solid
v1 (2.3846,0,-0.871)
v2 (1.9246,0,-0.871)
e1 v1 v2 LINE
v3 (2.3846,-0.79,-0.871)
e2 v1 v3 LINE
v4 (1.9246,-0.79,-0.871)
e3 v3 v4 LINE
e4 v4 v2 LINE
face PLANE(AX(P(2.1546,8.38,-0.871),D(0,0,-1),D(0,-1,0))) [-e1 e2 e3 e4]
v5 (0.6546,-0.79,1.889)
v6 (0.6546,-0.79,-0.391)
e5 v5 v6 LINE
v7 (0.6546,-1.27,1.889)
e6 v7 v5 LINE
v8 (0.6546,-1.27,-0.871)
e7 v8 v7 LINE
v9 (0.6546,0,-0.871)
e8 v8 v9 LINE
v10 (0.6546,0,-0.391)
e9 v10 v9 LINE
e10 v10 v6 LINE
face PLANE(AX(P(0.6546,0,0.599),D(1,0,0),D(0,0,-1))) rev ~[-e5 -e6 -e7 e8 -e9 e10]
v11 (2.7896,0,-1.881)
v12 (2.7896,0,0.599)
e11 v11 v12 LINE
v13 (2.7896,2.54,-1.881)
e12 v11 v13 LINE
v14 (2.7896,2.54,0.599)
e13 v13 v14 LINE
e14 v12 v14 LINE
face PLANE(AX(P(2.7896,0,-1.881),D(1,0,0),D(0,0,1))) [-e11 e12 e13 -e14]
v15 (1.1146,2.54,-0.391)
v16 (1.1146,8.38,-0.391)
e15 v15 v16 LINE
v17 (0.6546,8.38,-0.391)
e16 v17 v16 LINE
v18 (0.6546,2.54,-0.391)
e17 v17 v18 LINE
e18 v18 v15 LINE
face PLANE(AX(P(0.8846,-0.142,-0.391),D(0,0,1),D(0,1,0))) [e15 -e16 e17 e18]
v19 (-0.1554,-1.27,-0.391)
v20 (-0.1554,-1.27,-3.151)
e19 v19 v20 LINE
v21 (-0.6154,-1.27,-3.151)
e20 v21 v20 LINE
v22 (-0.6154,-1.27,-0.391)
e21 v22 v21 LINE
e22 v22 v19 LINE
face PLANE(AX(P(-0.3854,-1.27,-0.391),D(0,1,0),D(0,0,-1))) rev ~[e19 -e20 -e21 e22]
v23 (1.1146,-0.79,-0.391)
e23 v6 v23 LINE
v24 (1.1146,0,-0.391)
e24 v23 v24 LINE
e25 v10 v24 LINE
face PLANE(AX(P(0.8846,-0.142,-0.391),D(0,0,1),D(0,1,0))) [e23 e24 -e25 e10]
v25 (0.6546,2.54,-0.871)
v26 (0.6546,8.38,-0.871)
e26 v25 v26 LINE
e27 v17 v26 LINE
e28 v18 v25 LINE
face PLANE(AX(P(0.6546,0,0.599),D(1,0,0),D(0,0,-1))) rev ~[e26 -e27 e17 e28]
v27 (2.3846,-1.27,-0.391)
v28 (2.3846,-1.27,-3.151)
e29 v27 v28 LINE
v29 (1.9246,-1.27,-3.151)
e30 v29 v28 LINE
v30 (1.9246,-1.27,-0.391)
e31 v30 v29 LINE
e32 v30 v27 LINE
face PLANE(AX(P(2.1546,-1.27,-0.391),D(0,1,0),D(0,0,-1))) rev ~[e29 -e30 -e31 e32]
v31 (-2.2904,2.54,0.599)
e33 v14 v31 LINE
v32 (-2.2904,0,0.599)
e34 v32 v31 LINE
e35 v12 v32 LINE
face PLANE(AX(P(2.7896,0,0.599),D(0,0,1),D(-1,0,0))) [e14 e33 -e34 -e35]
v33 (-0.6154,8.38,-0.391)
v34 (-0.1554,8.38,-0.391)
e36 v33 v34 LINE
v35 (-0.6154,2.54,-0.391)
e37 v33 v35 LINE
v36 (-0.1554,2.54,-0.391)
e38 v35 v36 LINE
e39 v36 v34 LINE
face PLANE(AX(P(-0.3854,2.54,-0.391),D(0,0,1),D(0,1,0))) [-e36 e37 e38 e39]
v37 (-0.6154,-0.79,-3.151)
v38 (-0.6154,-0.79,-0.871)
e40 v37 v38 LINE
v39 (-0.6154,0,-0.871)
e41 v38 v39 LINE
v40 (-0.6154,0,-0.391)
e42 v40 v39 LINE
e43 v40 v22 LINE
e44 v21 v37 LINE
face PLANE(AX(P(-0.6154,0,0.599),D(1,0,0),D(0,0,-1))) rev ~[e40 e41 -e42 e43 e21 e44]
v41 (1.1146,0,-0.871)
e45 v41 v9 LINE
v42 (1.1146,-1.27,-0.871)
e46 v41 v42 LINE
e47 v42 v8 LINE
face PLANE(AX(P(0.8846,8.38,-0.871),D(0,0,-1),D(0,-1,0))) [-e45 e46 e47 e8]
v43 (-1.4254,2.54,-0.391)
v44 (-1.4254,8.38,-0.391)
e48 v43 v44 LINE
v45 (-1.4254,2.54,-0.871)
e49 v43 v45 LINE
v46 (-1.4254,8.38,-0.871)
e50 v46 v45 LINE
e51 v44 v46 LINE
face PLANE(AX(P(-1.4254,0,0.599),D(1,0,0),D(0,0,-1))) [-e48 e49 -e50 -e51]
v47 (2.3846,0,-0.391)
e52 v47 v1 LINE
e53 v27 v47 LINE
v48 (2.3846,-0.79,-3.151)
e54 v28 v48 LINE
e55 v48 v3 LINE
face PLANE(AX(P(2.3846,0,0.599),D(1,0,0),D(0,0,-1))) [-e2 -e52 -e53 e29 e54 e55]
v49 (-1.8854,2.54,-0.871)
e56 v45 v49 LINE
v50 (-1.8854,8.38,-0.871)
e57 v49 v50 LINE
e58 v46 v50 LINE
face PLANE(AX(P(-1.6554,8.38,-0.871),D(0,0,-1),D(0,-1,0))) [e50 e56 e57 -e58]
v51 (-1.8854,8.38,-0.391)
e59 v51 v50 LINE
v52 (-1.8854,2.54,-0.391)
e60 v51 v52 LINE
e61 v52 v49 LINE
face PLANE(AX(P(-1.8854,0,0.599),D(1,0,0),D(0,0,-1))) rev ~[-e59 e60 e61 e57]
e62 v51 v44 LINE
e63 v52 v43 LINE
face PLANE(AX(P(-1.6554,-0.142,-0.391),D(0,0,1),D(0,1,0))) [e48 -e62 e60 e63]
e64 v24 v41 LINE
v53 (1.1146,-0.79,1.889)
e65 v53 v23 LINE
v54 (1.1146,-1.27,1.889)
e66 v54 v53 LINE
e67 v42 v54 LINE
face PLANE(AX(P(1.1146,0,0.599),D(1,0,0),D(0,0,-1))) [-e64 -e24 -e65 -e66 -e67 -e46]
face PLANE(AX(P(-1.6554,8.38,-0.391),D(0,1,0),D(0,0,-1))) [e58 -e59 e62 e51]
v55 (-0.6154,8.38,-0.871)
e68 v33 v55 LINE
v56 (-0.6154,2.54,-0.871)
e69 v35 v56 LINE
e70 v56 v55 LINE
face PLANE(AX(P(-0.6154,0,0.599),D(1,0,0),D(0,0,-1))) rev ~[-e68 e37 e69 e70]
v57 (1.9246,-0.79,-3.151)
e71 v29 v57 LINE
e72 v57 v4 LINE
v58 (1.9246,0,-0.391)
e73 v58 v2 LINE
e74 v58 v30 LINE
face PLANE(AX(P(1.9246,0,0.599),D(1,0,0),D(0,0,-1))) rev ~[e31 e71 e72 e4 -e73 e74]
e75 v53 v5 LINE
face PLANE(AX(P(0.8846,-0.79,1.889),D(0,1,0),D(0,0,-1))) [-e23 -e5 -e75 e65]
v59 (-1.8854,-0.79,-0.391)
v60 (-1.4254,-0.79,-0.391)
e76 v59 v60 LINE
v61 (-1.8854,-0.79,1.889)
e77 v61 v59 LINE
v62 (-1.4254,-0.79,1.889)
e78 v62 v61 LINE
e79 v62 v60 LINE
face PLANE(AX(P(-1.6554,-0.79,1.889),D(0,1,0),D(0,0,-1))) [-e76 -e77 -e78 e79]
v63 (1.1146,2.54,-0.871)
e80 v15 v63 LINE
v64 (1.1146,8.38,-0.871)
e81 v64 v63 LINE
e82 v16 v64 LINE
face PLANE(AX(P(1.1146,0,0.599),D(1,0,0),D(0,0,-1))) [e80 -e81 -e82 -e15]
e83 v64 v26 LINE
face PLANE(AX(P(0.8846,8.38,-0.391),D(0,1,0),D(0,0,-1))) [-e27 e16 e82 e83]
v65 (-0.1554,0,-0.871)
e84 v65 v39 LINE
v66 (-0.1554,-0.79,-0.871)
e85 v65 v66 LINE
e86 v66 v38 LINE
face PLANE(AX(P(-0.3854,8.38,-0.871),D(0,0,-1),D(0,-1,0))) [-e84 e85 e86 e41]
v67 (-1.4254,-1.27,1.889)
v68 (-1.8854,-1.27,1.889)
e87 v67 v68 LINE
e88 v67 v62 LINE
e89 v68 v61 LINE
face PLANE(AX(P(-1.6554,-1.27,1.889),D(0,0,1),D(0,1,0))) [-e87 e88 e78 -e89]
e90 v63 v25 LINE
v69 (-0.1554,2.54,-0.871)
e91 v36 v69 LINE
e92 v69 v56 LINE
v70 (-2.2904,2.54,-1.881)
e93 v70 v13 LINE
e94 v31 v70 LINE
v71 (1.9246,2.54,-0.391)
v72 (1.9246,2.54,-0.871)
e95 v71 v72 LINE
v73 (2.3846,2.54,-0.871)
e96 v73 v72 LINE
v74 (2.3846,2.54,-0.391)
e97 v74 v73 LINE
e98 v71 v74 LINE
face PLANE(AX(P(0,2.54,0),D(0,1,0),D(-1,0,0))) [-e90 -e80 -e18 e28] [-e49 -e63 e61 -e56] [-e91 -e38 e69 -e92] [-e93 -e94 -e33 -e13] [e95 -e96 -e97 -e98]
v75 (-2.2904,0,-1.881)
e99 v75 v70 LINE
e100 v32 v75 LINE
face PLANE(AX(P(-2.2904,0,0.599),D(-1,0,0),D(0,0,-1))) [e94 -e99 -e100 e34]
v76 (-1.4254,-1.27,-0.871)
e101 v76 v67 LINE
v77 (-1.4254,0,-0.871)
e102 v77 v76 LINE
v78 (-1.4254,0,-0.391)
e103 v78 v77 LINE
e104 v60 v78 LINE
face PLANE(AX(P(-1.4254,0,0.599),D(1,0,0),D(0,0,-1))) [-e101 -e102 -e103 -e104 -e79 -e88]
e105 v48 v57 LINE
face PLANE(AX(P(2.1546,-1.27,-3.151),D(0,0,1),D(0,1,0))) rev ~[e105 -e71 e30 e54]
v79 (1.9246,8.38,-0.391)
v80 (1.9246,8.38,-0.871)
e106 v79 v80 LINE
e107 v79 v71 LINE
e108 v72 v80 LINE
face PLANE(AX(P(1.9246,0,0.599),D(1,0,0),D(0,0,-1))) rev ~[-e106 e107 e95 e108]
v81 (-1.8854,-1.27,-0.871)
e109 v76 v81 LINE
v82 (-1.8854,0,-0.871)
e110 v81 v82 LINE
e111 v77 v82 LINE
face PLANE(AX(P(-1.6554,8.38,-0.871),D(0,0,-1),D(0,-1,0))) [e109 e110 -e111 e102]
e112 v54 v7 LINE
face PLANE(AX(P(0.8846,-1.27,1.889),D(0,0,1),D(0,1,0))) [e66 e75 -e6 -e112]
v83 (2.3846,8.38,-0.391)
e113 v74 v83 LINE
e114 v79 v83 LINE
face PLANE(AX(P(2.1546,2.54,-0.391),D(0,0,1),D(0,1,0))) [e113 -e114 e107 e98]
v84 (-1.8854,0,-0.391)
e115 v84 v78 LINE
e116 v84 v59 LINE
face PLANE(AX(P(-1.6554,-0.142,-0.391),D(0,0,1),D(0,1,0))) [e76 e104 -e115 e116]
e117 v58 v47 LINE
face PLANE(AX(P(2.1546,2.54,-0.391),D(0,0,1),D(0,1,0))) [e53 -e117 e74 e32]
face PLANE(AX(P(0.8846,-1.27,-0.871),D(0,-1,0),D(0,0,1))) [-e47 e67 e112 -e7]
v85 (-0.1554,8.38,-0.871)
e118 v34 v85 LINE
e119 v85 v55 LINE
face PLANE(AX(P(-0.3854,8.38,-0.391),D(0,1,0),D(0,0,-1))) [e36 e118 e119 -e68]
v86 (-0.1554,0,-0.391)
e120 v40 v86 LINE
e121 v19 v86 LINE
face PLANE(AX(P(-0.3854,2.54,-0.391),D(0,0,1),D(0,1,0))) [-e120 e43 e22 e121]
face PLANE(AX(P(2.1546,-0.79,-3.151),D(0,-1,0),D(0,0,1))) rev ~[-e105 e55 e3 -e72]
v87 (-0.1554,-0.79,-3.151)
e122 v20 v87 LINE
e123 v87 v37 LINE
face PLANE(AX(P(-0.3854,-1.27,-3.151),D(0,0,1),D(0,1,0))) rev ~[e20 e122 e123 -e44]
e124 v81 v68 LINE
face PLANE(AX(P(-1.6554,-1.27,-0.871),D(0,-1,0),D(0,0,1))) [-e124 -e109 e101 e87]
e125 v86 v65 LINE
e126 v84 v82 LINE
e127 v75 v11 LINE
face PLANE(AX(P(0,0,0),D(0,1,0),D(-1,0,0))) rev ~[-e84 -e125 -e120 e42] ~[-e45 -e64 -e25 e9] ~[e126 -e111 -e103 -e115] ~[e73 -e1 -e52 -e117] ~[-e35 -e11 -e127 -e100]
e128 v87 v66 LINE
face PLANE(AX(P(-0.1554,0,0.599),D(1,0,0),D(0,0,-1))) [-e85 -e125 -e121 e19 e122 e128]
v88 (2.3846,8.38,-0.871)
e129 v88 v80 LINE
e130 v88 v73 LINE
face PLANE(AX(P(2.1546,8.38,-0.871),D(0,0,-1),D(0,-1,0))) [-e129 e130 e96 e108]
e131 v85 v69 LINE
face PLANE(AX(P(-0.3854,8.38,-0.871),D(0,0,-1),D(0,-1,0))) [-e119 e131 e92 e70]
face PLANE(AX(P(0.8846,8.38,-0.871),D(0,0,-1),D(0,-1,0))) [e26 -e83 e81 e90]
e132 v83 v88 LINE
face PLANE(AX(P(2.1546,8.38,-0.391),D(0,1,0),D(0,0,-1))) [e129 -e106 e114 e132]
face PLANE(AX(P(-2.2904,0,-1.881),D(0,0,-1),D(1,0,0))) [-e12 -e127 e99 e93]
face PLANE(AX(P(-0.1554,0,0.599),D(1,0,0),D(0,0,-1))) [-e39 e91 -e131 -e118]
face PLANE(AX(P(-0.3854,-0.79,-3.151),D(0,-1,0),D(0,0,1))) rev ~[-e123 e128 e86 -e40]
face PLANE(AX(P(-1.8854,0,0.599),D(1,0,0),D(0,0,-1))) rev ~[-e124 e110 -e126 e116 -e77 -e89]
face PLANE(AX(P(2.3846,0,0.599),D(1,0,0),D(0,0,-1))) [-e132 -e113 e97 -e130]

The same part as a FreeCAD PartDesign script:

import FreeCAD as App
import Part
import Sketcher
from FreeCAD import Vector
Q = App.Units.Quantity


def add_polygon(sketch, points):
    """Adds a closed chain of lines whose ends are joined by coincident constraints."""
    first, n = sketch.GeometryCount, len(points)
    for a, b in zip(points, points[1:] + points[:1]):
        sketch.addGeometry(Part.LineSegment(App.Vector(*a, 0), App.Vector(*b, 0)), False)
    for i in range(n):
        sketch.addConstraint(Sketcher.Constraint("Coincident", first + i, 2, first + (i + 1) % n, 1))

doc = App.newDocument("Part")
body = doc.addObject("PartDesign::Body", "Body")

sketch1 = body.newObject("Sketcher::SketchObject", "Sketch")
sketch1.AttachmentSupport = (doc.getObject("XZ_Plane"), [""])
sketch1.MapMode = "FlatFace"
add_polygon(sketch1, [(-2.3, 0.6), (2.8, 0.6), (2.8, -1.9), (-2.3, -1.9)])
sketch1.addConstraint([
    Sketcher.Constraint("Horizontal", 0),
    Sketcher.Constraint("Vertical", 1),
    Sketcher.Constraint("Horizontal", 2),
    Sketcher.Constraint("Vertical", 3),
    Sketcher.Constraint("DistanceX", 0, 1, 0, 2, Q("0.2 in")),
    Sketcher.Constraint("DistanceY", 1, 2, 1, 1, Q("2.48 mm")),
    Sketcher.Constraint("DistanceX", -1, 1, 0, 2, Q("2.7896 mm")),
    Sketcher.Constraint("DistanceY", -1, 1, 0, 2, Q("0.599 mm")),
])
pad1 = body.newObject("PartDesign::Pad", "Pad")
pad1.Profile = sketch1
pad1.Length = Q("0.1 in")
pad1.Reversed = True

sketch2 = body.newObject("Sketcher::SketchObject", "Sketch001")
sketch2.AttachmentSupport = (doc.getObject("YZ_Plane"), [""])
sketch2.MapMode = "FlatFace"
sketch2.AttachmentOffset = App.Placement(Vector(0, 0, 2.1546), App.Rotation())
add_polygon(sketch2, [(8.38, -0.87), (8.38, -0.39), (-1.27, -0.39), (-1.27, -3.15), (-0.79, -3.15), (-0.79, -0.87)])
sketch2.addConstraint([
    Sketcher.Constraint("Vertical", 0),
    Sketcher.Constraint("Horizontal", 1),
    Sketcher.Constraint("Vertical", 2),
    Sketcher.Constraint("Horizontal", 3),
    Sketcher.Constraint("Vertical", 4),
    Sketcher.Constraint("Horizontal", 5),
    Sketcher.Constraint("Equal", 3, 0),
    Sketcher.Constraint("DistanceX", 1, 2, -1, 1, Q("0.05 in")),
    Sketcher.Constraint("DistanceX", 3, 1, 3, 2, Q("0.0189 in")),
    Sketcher.Constraint("DistanceX", 1, 2, 1, 1, Q("9.65 mm")),
    Sketcher.Constraint("DistanceY", 2, 2, 2, 1, Q("2.76 mm")),
    Sketcher.Constraint("DistanceY", 0, 2, -1, 1, Q("0.0154 in")),
])
pad2 = body.newObject("PartDesign::Pad", "Pad001")
pad2.Profile = sketch2
pad2.Length = Q("0.0181102 in")
pad2.Midplane = True
doc.recompute()

linearpattern = body.newObject("PartDesign::LinearPattern", "LinearPattern")
linearpattern.Originals = [pad2]
linearpattern.Direction = (doc.getObject("X_Axis"), [""])
linearpattern.Mode = "offset"
linearpattern.Offset = Q("0.1 in")
linearpattern.Occurrences = 2
linearpattern.Reversed = True
body.Tip = linearpattern

sketch3 = body.newObject("Sketcher::SketchObject", "Sketch002")
sketch3.AttachmentSupport = (doc.getObject("YZ_Plane"), [""])
sketch3.MapMode = "FlatFace"
sketch3.AttachmentOffset = App.Placement(Vector(0, 0, 0.8846), App.Rotation())
add_polygon(sketch3, [(8.38, -0.87), (8.38, -0.39), (-0.79, -0.39), (-0.79, 1.89), (-1.27, 1.89), (-1.27, -0.87)])
sketch3.addConstraint([
    Sketcher.Constraint("Vertical", 0),
    Sketcher.Constraint("Horizontal", 1),
    Sketcher.Constraint("Vertical", 2),
    Sketcher.Constraint("Horizontal", 3),
    Sketcher.Constraint("Vertical", 4),
    Sketcher.Constraint("Horizontal", 5),
    Sketcher.Constraint("Equal", 3, 0),
    Sketcher.Constraint("DistanceX", 3, 2, 3, 1, Q("0.0189 in")),
    Sketcher.Constraint("DistanceX", 3, 2, -1, 1, Q("0.05 in")),
    Sketcher.Constraint("DistanceX", 1, 2, 1, 1, Q("9.17 mm")),
    Sketcher.Constraint("DistanceY", 2, 1, 2, 2, Q("2.28 mm")),
    Sketcher.Constraint("DistanceY", 0, 2, -1, 1, Q("0.0154 in")),
])
pad3 = body.newObject("PartDesign::Pad", "Pad002")
pad3.Profile = sketch3
pad3.Length = Q("0.0181102 in")
pad3.Midplane = True
doc.recompute()

linearpattern2 = body.newObject("PartDesign::LinearPattern", "LinearPattern001")
linearpattern2.Originals = [pad3]
linearpattern2.Direction = (doc.getObject("X_Axis"), [""])
linearpattern2.Mode = "offset"
linearpattern2.Offset = Q("0.1 in")
linearpattern2.Occurrences = 2
linearpattern2.Reversed = True
body.Tip = linearpattern2

doc.recompute()
